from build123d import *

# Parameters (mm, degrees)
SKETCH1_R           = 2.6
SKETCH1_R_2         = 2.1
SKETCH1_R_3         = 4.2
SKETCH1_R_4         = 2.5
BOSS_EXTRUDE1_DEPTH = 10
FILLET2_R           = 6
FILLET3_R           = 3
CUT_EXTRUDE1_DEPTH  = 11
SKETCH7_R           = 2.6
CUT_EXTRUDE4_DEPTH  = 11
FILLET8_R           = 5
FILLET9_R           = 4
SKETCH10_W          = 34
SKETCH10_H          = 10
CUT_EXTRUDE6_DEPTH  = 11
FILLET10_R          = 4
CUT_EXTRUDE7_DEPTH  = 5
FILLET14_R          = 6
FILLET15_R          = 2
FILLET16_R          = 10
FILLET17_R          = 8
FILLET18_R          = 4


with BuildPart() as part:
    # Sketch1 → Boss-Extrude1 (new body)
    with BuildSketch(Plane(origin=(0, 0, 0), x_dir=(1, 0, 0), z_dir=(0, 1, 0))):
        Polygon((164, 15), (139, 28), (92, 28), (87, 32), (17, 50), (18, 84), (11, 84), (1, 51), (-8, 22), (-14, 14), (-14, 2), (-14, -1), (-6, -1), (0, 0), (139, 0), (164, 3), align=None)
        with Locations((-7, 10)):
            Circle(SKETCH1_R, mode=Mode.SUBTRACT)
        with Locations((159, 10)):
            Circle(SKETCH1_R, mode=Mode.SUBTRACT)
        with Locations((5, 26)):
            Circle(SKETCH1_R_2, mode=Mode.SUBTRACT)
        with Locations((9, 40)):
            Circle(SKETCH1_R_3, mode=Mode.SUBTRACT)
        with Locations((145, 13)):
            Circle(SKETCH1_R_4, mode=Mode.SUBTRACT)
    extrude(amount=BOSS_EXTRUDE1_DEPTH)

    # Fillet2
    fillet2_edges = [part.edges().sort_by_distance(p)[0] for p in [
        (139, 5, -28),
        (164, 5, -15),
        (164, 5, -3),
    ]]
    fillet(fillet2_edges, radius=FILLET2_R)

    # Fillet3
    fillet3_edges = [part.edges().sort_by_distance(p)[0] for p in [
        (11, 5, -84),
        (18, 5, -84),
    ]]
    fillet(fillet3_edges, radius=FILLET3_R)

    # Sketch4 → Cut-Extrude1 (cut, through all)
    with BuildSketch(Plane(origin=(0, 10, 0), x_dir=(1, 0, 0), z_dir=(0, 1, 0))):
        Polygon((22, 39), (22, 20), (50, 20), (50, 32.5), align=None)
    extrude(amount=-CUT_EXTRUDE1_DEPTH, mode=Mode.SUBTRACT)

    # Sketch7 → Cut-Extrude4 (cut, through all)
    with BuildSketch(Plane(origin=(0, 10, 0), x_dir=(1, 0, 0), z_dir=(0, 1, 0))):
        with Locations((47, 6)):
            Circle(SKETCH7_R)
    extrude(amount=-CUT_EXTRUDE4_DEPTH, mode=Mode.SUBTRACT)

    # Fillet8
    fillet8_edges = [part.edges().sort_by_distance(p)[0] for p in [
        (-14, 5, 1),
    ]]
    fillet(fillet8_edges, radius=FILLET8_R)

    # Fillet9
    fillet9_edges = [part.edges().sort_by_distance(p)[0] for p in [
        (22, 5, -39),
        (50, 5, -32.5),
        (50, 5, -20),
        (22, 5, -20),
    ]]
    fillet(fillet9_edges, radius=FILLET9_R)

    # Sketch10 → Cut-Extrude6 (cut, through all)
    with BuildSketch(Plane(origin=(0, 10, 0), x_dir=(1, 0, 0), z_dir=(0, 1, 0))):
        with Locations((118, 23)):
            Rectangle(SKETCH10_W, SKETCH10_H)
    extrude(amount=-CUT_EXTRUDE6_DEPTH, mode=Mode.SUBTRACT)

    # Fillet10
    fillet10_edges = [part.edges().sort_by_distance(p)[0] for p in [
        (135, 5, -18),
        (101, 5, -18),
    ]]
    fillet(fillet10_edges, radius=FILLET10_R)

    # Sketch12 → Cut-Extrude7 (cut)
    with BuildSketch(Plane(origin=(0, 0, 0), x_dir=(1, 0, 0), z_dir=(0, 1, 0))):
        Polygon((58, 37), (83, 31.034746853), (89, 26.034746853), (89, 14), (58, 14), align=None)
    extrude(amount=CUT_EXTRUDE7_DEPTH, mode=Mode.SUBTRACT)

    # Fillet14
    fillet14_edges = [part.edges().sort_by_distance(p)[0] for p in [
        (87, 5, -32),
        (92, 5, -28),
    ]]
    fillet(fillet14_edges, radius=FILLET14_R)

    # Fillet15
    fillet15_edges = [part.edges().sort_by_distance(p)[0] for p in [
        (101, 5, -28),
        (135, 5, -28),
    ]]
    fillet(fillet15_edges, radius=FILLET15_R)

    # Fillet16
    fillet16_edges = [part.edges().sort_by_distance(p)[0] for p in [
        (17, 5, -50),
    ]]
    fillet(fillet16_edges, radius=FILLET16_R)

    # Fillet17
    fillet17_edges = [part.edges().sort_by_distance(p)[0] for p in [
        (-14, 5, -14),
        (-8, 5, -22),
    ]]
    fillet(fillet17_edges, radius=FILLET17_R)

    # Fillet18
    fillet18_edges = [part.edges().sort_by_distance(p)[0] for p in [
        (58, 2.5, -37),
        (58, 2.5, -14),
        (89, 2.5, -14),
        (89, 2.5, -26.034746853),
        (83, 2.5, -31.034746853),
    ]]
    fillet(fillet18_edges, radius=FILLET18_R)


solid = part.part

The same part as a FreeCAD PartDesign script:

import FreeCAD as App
import Part
import Sketcher
from FreeCAD import Vector


def edges_at(feature, points):
    """Names of the edges that pass closest to the given points."""
    edges = feature.Shape.Edges
    near = lambda p: min(range(len(edges)), key=lambda i: edges[i].distToShape(Part.Vertex(*p))[0])
    return sorted({f"Edge{near(p) + 1}" for p in points})


def add_polygon(sketch, points):
    """Adds a closed chain of lines whose ends are joined by coincident constraints."""
    first, n = sketch.GeometryCount, len(points)
    for a, b in zip(points, points[1:] + points[:1]):
        sketch.addGeometry(Part.LineSegment(App.Vector(*a, 0), App.Vector(*b, 0)), False)
    for i in range(n):
        sketch.addConstraint(Sketcher.Constraint("Coincident", first + i, 2, first + (i + 1) % n, 1))

doc = App.newDocument("Part")
body = doc.addObject("PartDesign::Body", "Body")

# Sketch on XZ plane
sketch1 = body.newObject("Sketcher::SketchObject", "Sketch")
sketch1.AttachmentSupport = (doc.getObject("XZ_Plane"), [""])
sketch1.MapMode = "FlatFace"
add_polygon(sketch1, [(164, -15), (139, -28), (92, -28), (87, -32), (17, -50), (18, -84), (11, -84), (1, -51), (-8, -22), (-14, -14), (-14, 1), (-6, 1), (0, 0), (139, 0), (164, -3)])  # lines 0-14
sketch1.addGeometry(Part.Circle(Vector(-7, -10, 0), Vector(0, 0, 1), 2.6), False)  # 15
sketch1.addGeometry(Part.Circle(Vector(159, -10, 0), Vector(0, 0, 1), 2.6), False)  # 16
sketch1.addGeometry(Part.Circle(Vector(145, -13, 0), Vector(0, 0, 1), 2.5), False)  # 17
sketch1.addGeometry(Part.Circle(Vector(5, -26, 0), Vector(0, 0, 1), 2.1), False)  # 18
sketch1.addGeometry(Part.Circle(Vector(9, -40, 0), Vector(0, 0, 1), 4.2), False)  # 19
sketch1.addConstraint(Sketcher.Constraint("Horizontal", 1))
sketch1.addConstraint(Sketcher.Constraint("Horizontal", 5))
sketch1.addConstraint(Sketcher.Constraint("Vertical", 9))
sketch1.addConstraint(Sketcher.Constraint("Horizontal", 10))
sketch1.addConstraint(Sketcher.Constraint("Horizontal", 12))
sketch1.addConstraint(Sketcher.Constraint("Vertical", 14))
sketch1.addConstraint(Sketcher.Constraint("Coincident", 11, 2, -1, 1))
sketch1.addConstraint(Sketcher.Constraint("Equal", 15, 16))
sketch1.addConstraint(Sketcher.Constraint("Horizontal", 15, 3, 16, 3))
sketch1.addConstraint(Sketcher.Constraint("Vertical", 0, 2, 12, 2))
sketch1.addConstraint(Sketcher.Constraint("Diameter", 17, 5.0))
sketch1.addConstraint(Sketcher.Constraint("Diameter", 15, 5.2))
sketch1.addConstraint(Sketcher.Constraint("Diameter", 18, 4.2))
sketch1.addConstraint(Sketcher.Constraint("Diameter", 19, 8.4))
sketch1.addConstraint(Sketcher.Constraint("DistanceX", 1, 2, 1, 1, 47.0))
sketch1.addConstraint(Sketcher.Constraint("DistanceX", 5, 2, 5, 1, 7.0))
sketch1.addConstraint(Sketcher.Constraint("DistanceX", 10, 1, 10, 2, 8.0))
sketch1.addConstraint(Sketcher.Constraint("DistanceX", 12, 1, 12, 2, 139.0))
sketch1.addConstraint(Sketcher.Constraint("DistanceY", 9, 1, 9, 2, 15.0))
sketch1.addConstraint(Sketcher.Constraint("DistanceY", 14, 2, 14, 1, 12.0))
sketch1.addConstraint(Sketcher.Constraint("Distance", 8, 10.0))
sketch1.addConstraint(Sketcher.Constraint("DistanceX", 15, 3, -1, 1, 7.0))
sketch1.addConstraint(Sketcher.Constraint("DistanceY", 15, 3, -1, 1, 10.0))
sketch1.addConstraint(Sketcher.Constraint("DistanceX", -1, 1, 16, 3, 159.0))
sketch1.addConstraint(Sketcher.Constraint("DistanceX", -1, 1, 17, 3, 145.0))
sketch1.addConstraint(Sketcher.Constraint("DistanceY", 17, 3, -1, 1, 13.0))
sketch1.addConstraint(Sketcher.Constraint("DistanceX", -1, 1, 18, 3, 5.0))
sketch1.addConstraint(Sketcher.Constraint("DistanceY", 18, 3, -1, 1, 26.0))
sketch1.addConstraint(Sketcher.Constraint("DistanceX", -1, 1, 19, 3, 9.0))
sketch1.addConstraint(Sketcher.Constraint("DistanceY", 19, 3, -1, 1, 40.0))
sketch1.addConstraint(Sketcher.Constraint("DistanceY", 0, 2, -1, 1, 28.0))
sketch1.addConstraint(Sketcher.Constraint("DistanceX", -1, 1, 2, 2, 87.0))
sketch1.addConstraint(Sketcher.Constraint("DistanceY", 2, 2, -1, 1, 32.0))
sketch1.addConstraint(Sketcher.Constraint("DistanceX", -1, 1, 3, 2, 17.0))
sketch1.addConstraint(Sketcher.Constraint("DistanceY", 3, 2, -1, 1, 50.0))
sketch1.addConstraint(Sketcher.Constraint("DistanceX", -1, 1, 4, 2, 18.0))
sketch1.addConstraint(Sketcher.Constraint("DistanceY", 4, 2, -1, 1, 84.0))
sketch1.addConstraint(Sketcher.Constraint("DistanceX", -1, 1, 6, 2, 1.0))
sketch1.addConstraint(Sketcher.Constraint("DistanceY", 6, 2, -1, 1, 51.0))
sketch1.addConstraint(Sketcher.Constraint("DistanceX", 7, 2, -1, 1, 8.0))
sketch1.addConstraint(Sketcher.Constraint("DistanceY", 7, 2, -1, 1, 22.0))
sketch1.addConstraint(Sketcher.Constraint("DistanceX", 8, 2, -1, 1, 14.0))
sketch1.addConstraint(Sketcher.Constraint("DistanceX", -1, 1, 13, 2, 164.0))
sketch1.addConstraint(Sketcher.Constraint("DistanceY", 13, 2, -1, 1, 3.0))
pad1 = body.newObject("PartDesign::Pad", "Pad")
pad1.Profile = sketch1
pad1.Length = 10
pad1.Reversed = True
doc.recompute()

fillet = body.newObject("PartDesign::Fillet", "Fillet")
fillet.Base = (pad1, edges_at(pad1, [(139, 5, -28), (164, 5, -15), (164, 5, -3)]))
fillet.Radius = 6
doc.recompute()

fillet2 = body.newObject("PartDesign::Fillet", "Fillet001")
fillet2.Base = (fillet, edges_at(fillet, [(11, 5, -84), (18, 5, -84)]))
fillet2.Radius = 3

# Sketch on XZ plane
sketch2 = body.newObject("Sketcher::SketchObject", "Sketch001")
sketch2.AttachmentSupport = (doc.getObject("XZ_Plane"), [""])
sketch2.MapMode = "FlatFace"
sketch2.AttachmentOffset = App.Placement(Vector(0, 0, -10), App.Rotation())
add_polygon(sketch2, [(22, -39), (22, -20), (50, -20), (50, -32.5)])  # lines 0-3
sketch2.addConstraint(Sketcher.Constraint("Vertical", 0))
sketch2.addConstraint(Sketcher.Constraint("Horizontal", 1))
sketch2.addConstraint(Sketcher.Constraint("Vertical", 2))
sketch2.addConstraint(Sketcher.Constraint("DistanceX", 1, 1, 1, 2, 28.0))
sketch2.addConstraint(Sketcher.Constraint("DistanceY", 0, 1, 0, 2, 19.0))
sketch2.addConstraint(Sketcher.Constraint("DistanceY", 2, 2, 2, 1, 12.5))
sketch2.addConstraint(Sketcher.Constraint("DistanceX", -1, 1, 0, 2, 22.0))
sketch2.addConstraint(Sketcher.Constraint("DistanceY", 0, 2, -1, 1, 20.0))
pocket1 = body.newObject("PartDesign::Pocket", "Pocket")
pocket1.Profile = sketch2
pocket1.Type = "ThroughAll"
pocket1.Reversed = True

# Sketch on XZ plane
sketch3 = body.newObject("Sketcher::SketchObject", "Sketch002")
sketch3.AttachmentSupport = (doc.getObject("XZ_Plane"), [""])
sketch3.MapMode = "FlatFace"
sketch3.AttachmentOffset = App.Placement(Vector(0, 0, -10), App.Rotation())
sketch3.addGeometry(Part.Circle(Vector(47, -6, 0), Vector(0, 0, 1), 2.6), False)
sketch3.addConstraint(Sketcher.Constraint("Diameter", 0, 5.2))
sketch3.addConstraint(Sketcher.Constraint("DistanceX", -1, 1, 0, 3, 47.0))
sketch3.addConstraint(Sketcher.Constraint("DistanceY", 0, 3, -1, 1, 6.0))
pocket2 = body.newObject("PartDesign::Pocket", "Pocket001")
pocket2.Profile = sketch3
pocket2.Type = "ThroughAll"
pocket2.Reversed = True
doc.recompute()

fillet3 = body.newObject("PartDesign::Fillet", "Fillet002")
fillet3.Base = (pocket2, edges_at(pocket2, [(-14, 5, 1)]))
fillet3.Radius = 5
doc.recompute()

fillet4 = body.newObject("PartDesign::Fillet", "Fillet003")
fillet4.Base = (fillet3, edges_at(fillet3, [
    (22, 5, -39),
    (50, 5, -32.5),
    (50, 5, -20),
    (22, 5, -20),
]))
fillet4.Radius = 4

# Sketch on XZ plane
sketch4 = body.newObject("Sketcher::SketchObject", "Sketch003")
sketch4.AttachmentSupport = (doc.getObject("XZ_Plane"), [""])
sketch4.MapMode = "FlatFace"
sketch4.AttachmentOffset = App.Placement(Vector(0, 0, -10), App.Rotation())
add_polygon(sketch4, [(101, -28), (101, -18), (135, -18), (135, -28)])  # lines 0-3
sketch4.addConstraint(Sketcher.Constraint("Vertical", 0))
sketch4.addConstraint(Sketcher.Constraint("Horizontal", 1))
sketch4.addConstraint(Sketcher.Constraint("Vertical", 2))
sketch4.addConstraint(Sketcher.Constraint("Horizontal", 3))
sketch4.addConstraint(Sketcher.Constraint("DistanceX", 1, 1, 1, 2, 34.0))
sketch4.addConstraint(Sketcher.Constraint("DistanceY", 0, 1, 0, 2, 10.0))
sketch4.addConstraint(Sketcher.Constraint("DistanceX", -1, 1, 0, 2, 101.0))
sketch4.addConstraint(Sketcher.Constraint("DistanceY", 0, 2, -1, 1, 18.0))
pocket3 = body.newObject("PartDesign::Pocket", "Pocket002")
pocket3.Profile = sketch4
pocket3.Type = "ThroughAll"
pocket3.Reversed = True
doc.recompute()

fillet5 = body.newObject("PartDesign::Fillet", "Fillet004")
fillet5.Base = (pocket3, edges_at(pocket3, [(135, 5, -18), (101, 5, -18)]))
fillet5.Radius = 4

# Sketch on XZ plane
sketch5 = body.newObject("Sketcher::SketchObject", "Sketch004")
sketch5.AttachmentSupport = (doc.getObject("XZ_Plane"), [""])
sketch5.MapMode = "FlatFace"
add_polygon(sketch5, [(83, -31.034747), (58, -37), (58, -14), (89, -14), (89, -26.034747)])  # lines 0-4
sketch5.addConstraint(Sketcher.Constraint("Vertical", 1))
sketch5.addConstraint(Sketcher.Constraint("Horizontal", 2))
sketch5.addConstraint(Sketcher.Constraint("Vertical", 3))
sketch5.addConstraint(Sketcher.Constraint("DistanceX", 2, 1, 2, 2, 31.0))
sketch5.addConstraint(Sketcher.Constraint("DistanceY", 1, 1, 1, 2, 23.0))
sketch5.addConstraint(Sketcher.Constraint("DistanceX", -1, 1, 0, 2, 58.0))
sketch5.addConstraint(Sketcher.Constraint("DistanceY", 0, 2, -1, 1, 37.0))
sketch5.addConstraint(Sketcher.Constraint("DistanceX", -1, 1, 4, 2, 83.0))
sketch5.addConstraint(Sketcher.Constraint("DistanceY", 4, 2, 3, 2, 5.0))
sketch5.addConstraint(Sketcher.Constraint("DistanceY", 3, 2, 3, 1, 12.034747))
pocket4 = body.newObject("PartDesign::Pocket", "Pocket003")
pocket4.Profile = sketch5
pocket4.Length = 5
doc.recompute()

fillet6 = body.newObject("PartDesign::Fillet", "Fillet005")
fillet6.Base = (pocket4, edges_at(pocket4, [(87, 5, -32), (92, 5, -28)]))
fillet6.Radius = 6
doc.recompute()

fillet7 = body.newObject("PartDesign::Fillet", "Fillet006")
fillet7.Base = (fillet6, edges_at(fillet6, [(101, 5, -28), (135, 5, -28)]))
fillet7.Radius = 2
doc.recompute()

fillet8 = body.newObject("PartDesign::Fillet", "Fillet007")
fillet8.Base = (fillet7, edges_at(fillet7, [(17, 5, -50)]))
fillet8.Radius = 10
doc.recompute()

fillet9 = body.newObject("PartDesign::Fillet", "Fillet008")
fillet9.Base = (fillet8, edges_at(fillet8, [(-14, 5, -14), (-8, 5, -22)]))
fillet9.Radius = 8
doc.recompute()

fillet10 = body.newObject("PartDesign::Fillet", "Fillet009")
fillet10.Base = (fillet9, edges_at(fillet9, [
    (58, 2.5, -37),
    (58, 2.5, -14),
    (89, 2.5, -14),
    (89, 2.5, -26.035),
    (83, 2.5, -31.035),
]))
fillet10.Radius = 4

doc.recompute()
